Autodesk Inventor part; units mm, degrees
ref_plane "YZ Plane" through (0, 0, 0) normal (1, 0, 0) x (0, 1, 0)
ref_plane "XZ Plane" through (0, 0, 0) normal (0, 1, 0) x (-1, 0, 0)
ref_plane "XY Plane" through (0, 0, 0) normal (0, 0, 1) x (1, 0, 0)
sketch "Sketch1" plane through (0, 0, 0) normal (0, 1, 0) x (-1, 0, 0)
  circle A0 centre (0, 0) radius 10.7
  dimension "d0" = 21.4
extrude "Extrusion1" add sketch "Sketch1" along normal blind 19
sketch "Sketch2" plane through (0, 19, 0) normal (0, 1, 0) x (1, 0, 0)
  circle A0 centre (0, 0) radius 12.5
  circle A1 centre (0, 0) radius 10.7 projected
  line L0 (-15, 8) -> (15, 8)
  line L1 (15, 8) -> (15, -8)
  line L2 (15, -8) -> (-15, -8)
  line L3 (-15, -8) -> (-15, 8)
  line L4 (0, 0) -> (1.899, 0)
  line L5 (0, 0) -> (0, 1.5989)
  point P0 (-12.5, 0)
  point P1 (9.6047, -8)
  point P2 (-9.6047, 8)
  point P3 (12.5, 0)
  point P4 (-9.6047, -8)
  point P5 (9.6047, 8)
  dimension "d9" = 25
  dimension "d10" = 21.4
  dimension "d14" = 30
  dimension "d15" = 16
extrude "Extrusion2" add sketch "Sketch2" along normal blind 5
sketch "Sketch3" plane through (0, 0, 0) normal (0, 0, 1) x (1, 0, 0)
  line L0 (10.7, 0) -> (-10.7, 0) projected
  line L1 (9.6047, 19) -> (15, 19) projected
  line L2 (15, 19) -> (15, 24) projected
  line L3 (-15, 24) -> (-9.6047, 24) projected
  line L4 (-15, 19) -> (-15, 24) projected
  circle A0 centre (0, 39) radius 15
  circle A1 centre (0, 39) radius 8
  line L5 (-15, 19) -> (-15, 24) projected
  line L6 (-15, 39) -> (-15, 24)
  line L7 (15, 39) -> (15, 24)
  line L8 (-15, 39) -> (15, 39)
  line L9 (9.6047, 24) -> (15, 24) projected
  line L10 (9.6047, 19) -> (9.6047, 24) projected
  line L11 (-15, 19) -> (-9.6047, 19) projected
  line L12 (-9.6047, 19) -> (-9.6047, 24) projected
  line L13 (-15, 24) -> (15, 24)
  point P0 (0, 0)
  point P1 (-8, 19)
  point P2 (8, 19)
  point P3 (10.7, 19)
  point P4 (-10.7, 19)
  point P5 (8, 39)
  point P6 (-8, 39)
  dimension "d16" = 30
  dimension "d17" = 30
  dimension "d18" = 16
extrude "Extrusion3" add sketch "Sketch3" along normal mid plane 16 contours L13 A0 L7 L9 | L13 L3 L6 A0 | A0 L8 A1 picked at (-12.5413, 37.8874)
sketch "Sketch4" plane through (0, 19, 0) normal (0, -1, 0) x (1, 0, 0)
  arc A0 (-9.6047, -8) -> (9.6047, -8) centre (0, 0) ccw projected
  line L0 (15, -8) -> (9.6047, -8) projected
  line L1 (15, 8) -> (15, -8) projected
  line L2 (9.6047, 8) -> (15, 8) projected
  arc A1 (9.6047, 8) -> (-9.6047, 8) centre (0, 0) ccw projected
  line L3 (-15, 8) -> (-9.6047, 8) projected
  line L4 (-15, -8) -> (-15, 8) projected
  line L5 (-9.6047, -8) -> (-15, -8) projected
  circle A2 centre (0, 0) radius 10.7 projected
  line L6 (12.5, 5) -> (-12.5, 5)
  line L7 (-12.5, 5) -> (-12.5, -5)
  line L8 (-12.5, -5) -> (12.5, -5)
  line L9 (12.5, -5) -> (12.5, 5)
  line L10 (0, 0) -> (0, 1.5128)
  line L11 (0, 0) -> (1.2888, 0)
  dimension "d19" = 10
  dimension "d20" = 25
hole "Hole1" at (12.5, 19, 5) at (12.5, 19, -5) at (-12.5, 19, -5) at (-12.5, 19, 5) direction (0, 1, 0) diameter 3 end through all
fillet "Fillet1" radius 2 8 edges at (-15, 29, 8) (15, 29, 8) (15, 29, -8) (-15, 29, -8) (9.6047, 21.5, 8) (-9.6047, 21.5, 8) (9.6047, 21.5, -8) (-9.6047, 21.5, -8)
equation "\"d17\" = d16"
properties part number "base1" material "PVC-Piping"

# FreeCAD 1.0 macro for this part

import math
import FreeCAD as App
import Part
import Sketcher

V = App.Vector
Q = App.Units.Quantity


def edges_at(feature, points):
    """Names of the edges that pass closest to the given points."""
    edges = feature.Shape.Edges
    near = lambda p: min(range(len(edges)), key=lambda i: edges[i].distToShape(Part.Vertex(*p))[0])
    return sorted({f"Edge{near(p) + 1}" for p in points})

doc = App.newDocument("Part")
body = doc.addObject("PartDesign::Body", "Body")

# Sketch on XZ plane
sketch1 = body.newObject("Sketcher::SketchObject", "Sketch")
sketch1.AttachmentSupport = (doc.getObject("XZ_Plane"), [""])
sketch1.MapMode = "FlatFace"
sketch1.addGeometry(Part.Circle(V(0, 0, 0), V(0, 0, 1), 11), False)
sketch1.addConstraint(Sketcher.Constraint("Coincident", 0, 3, -1, 1))
sketch1.addConstraint(Sketcher.Constraint("Diameter", 0, Q("21.4 mm")))
pad1 = body.newObject("PartDesign::Pad", "Pad")
pad1.Profile = sketch1
pad1.Length = 19
pad1.Reversed = True

# Sketch on XZ plane
sketch2 = body.newObject("Sketcher::SketchObject", "Sketch001")
sketch2.AttachmentSupport = (doc.getObject("XZ_Plane"), [""])
sketch2.MapMode = "FlatFace"
sketch2.AttachmentOffset = App.Placement(V(0, 0, -19), App.Rotation())
sketch2.addGeometry(Part.LineSegment(V(10, 8, 0), V(15, 8, 0)), False)
sketch2.addGeometry(Part.LineSegment(V(15, 8, 0), V(15, -8, 0)), False)
sketch2.addGeometry(Part.LineSegment(V(15, -8, 0), V(10, -8, 0)), False)
sketch2.addGeometry(Part.ArcOfCircle(Part.Circle(V(0, 0, 0), V(0, 0, 1), 12), math.radians(-140), math.radians(-40)), False)
sketch2.addGeometry(Part.LineSegment(V(-10, -8, 0), V(-15, -8, 0)), False)
sketch2.addGeometry(Part.LineSegment(V(-15, -8, 0), V(-15, 8, 0)), False)
sketch2.addGeometry(Part.LineSegment(V(-15, 8, 0), V(-10, 8, 0)), False)
sketch2.addGeometry(Part.ArcOfCircle(Part.Circle(V(0, 0, 0), V(0, 0, 1), 12), math.radians(40), math.radians(140)), False)
sketch2.addConstraint(Sketcher.Constraint("Coincident", 0, 2, 1, 1))
sketch2.addConstraint(Sketcher.Constraint("Coincident", 1, 2, 2, 1))
sketch2.addConstraint(Sketcher.Constraint("Coincident", 2, 2, 3, 2))
sketch2.addConstraint(Sketcher.Constraint("Coincident", 3, 1, 4, 1))
sketch2.addConstraint(Sketcher.Constraint("Coincident", 4, 2, 5, 1))
sketch2.addConstraint(Sketcher.Constraint("Coincident", 5, 2, 6, 1))
sketch2.addConstraint(Sketcher.Constraint("Coincident", 6, 2, 7, 2))
sketch2.addConstraint(Sketcher.Constraint("Coincident", 7, 1, 0, 1))
sketch2.addConstraint(Sketcher.Constraint("Horizontal", 0))
sketch2.addConstraint(Sketcher.Constraint("Vertical", 1))
sketch2.addConstraint(Sketcher.Constraint("Horizontal", 2))
sketch2.addConstraint(Sketcher.Constraint("Horizontal", 4))
sketch2.addConstraint(Sketcher.Constraint("Vertical", 5))
sketch2.addConstraint(Sketcher.Constraint("Horizontal", 6))
sketch2.addConstraint(Sketcher.Constraint("Coincident", 3, 3, -1, 1))
sketch2.addConstraint(Sketcher.Constraint("Coincident", 7, 3, -1, 1))
sketch2.addConstraint(Sketcher.Constraint("Equal", 3, 7))
sketch2.addConstraint(Sketcher.Constraint("Symmetric", 0, 2, 4, 2, -1, 1))
sketch2.addConstraint(Sketcher.Constraint("Horizontal", 2, 2, 3, 1))
sketch2.addConstraint(Sketcher.Constraint("Horizontal", 0, 2, 5, 2))
sketch2.addConstraint(Sketcher.Constraint("Radius", 3, Q("12.5 mm")))
sketch2.addConstraint(Sketcher.Constraint("DistanceY", 1, 2, 1, 1, Q("16 mm")))
sketch2.addConstraint(Sketcher.Constraint("DistanceX", 4, 2, 1, 2, Q("30 mm")))
pad2 = body.newObject("PartDesign::Pad", "Pad001")
pad2.Profile = sketch2
pad2.Length = 5
pad2.Reversed = True

# Sketch on XY plane
sketch3 = body.newObject("Sketcher::SketchObject", "Sketch002")
sketch3.AttachmentSupport = (doc.getObject("XY_Plane"), [""])
sketch3.MapMode = "FlatFace"
sketch3.addGeometry(Part.LineSegment(V(15, 24, 0), V(15, 39, 0)), False)
sketch3.addGeometry(Part.LineSegment(V(15, 39, 0), V(8, 39, 0)), False)
sketch3.addGeometry(Part.ArcOfCircle(Part.Circle(V(0, 39, 0), V(0, 0, 1), 8), math.radians(180), math.radians(360)), False)
sketch3.addGeometry(Part.LineSegment(V(-8, 39, 0), V(-15, 39, 0)), False)
sketch3.addGeometry(Part.LineSegment(V(-15, 39, 0), V(-15, 24, 0)), False)
sketch3.addGeometry(Part.LineSegment(V(-15, 24, 0), V(15, 24, 0)), False)
sketch3.addConstraint(Sketcher.Constraint("Coincident", 0, 2, 1, 1))
sketch3.addConstraint(Sketcher.Constraint("Coincident", 1, 2, 2, 2))
sketch3.addConstraint(Sketcher.Constraint("Coincident", 2, 1, 3, 1))
sketch3.addConstraint(Sketcher.Constraint("Coincident", 3, 2, 4, 1))
sketch3.addConstraint(Sketcher.Constraint("Coincident", 4, 2, 5, 1))
sketch3.addConstraint(Sketcher.Constraint("Coincident", 5, 2, 0, 1))
sketch3.addConstraint(Sketcher.Constraint("Vertical", 0))
sketch3.addConstraint(Sketcher.Constraint("Horizontal", 1))
sketch3.addConstraint(Sketcher.Constraint("Horizontal", 3))
sketch3.addConstraint(Sketcher.Constraint("Vertical", 4))
sketch3.addConstraint(Sketcher.Constraint("Horizontal", 5))
sketch3.addConstraint(Sketcher.Constraint("Symmetric", 1, 2, 2, 1, -2))
sketch3.addConstraint(Sketcher.Constraint("Horizontal", 2, 3, 0, 2))
sketch3.addConstraint(Sketcher.Constraint("Equal", 1, 3))
sketch3.addConstraint(Sketcher.Constraint("Radius", 2, Q("8 mm")))
sketch3.addConstraint(Sketcher.Constraint("DistanceX", 5, 1, 5, 2, Q("30 mm")))
sketch3.addConstraint(Sketcher.Constraint("DistanceY", 0, 1, 0, 2, Q("15 mm")))
sketch3.addConstraint(Sketcher.Constraint("DistanceY", -1, 1, 2, 3, Q("39 mm")))
pad3 = body.newObject("PartDesign::Pad", "Pad002")
pad3.Profile = sketch3
pad3.Length = 16
pad3.Midplane = True

# Sketch on XZ plane
sketch4 = body.newObject("Sketcher::SketchObject", "Sketch003")
sketch4.AttachmentSupport = (doc.getObject("XZ_Plane"), [""])
sketch4.MapMode = "FlatFace"
sketch4.AttachmentOffset = App.Placement(V(0, 0, -19), App.Rotation())
sketch4.addGeometry(Part.Circle(V(12.5, 5, 0), V(0, 0, 1), 1.5), False)
sketch4.addGeometry(Part.Circle(V(12.5, -5, 0), V(0, 0, 1), 1.5), False)
sketch4.addGeometry(Part.Circle(V(-12.5, -5, 0), V(0, 0, 1), 1.5), False)
sketch4.addGeometry(Part.Circle(V(-12.5, 5, 0), V(0, 0, 1), 1.5), False)
sketch4.addConstraint(Sketcher.Constraint("Equal", 0, 1))
sketch4.addConstraint(Sketcher.Constraint("Equal", 1, 2))
sketch4.addConstraint(Sketcher.Constraint("Equal", 2, 3))
sketch4.addConstraint(Sketcher.Constraint("Symmetric", 0, 3, 2, 3, -1, 1))
sketch4.addConstraint(Sketcher.Constraint("Symmetric", 1, 3, 3, 3, -1, 1))
sketch4.addConstraint(Sketcher.Constraint("Symmetric", 1, 3, 2, 3, -2))
sketch4.addConstraint(Sketcher.Constraint("Diameter", 0, Q("3 mm")))
sketch4.addConstraint(Sketcher.Constraint("DistanceY", -1, 1, 0, 3, Q("5 mm")))
sketch4.addConstraint(Sketcher.Constraint("DistanceX", 2, 3, 1, 3, Q("25 mm")))
doc.recompute()
hole = body.newObject("PartDesign::Hole", "Hole")
hole.Profile = sketch4
hole.ThreadType = "None"
hole.Diameter = 3
hole.DepthType = "ThroughAll"
doc.recompute()

fillet = body.newObject("PartDesign::Fillet", "Fillet")
fillet.Base = (hole, edges_at(hole, [
    (-15, 29, 8),
    (15, 29, 8),
    (15, 29, -8),
    (-15, 29, -8),
    (9.605, 21.5, 8),
    (-9.605, 21.5, 8),
    (9.605, 21.5, -8),
    (-9.605, 21.5, -8),
]))
fillet.Radius = 2

doc.recompute()
